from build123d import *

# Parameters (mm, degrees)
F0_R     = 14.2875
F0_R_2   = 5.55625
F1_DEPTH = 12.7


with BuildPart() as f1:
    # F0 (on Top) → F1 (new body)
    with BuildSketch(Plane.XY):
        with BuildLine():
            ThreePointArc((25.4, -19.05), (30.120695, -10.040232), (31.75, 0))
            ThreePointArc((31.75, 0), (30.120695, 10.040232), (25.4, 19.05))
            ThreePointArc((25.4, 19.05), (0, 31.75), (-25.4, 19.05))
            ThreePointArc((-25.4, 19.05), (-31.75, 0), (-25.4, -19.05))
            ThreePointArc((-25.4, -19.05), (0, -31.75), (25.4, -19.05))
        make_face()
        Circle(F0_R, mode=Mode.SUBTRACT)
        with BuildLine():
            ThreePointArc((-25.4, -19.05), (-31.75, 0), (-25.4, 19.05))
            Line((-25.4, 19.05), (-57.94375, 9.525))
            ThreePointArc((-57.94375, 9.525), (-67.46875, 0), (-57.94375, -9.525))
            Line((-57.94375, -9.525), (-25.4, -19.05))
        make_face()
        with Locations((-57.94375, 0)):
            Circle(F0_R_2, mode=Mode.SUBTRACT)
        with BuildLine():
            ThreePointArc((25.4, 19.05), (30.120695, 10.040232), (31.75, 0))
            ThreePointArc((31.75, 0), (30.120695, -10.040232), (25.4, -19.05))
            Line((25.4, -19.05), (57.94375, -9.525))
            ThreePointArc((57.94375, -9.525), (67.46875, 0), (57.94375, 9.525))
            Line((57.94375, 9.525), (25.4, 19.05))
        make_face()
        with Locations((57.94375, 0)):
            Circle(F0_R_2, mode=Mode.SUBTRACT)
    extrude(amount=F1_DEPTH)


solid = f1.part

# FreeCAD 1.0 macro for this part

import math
import FreeCAD as App
import Part
import Sketcher
from FreeCAD import Vector
Q = App.Units.Quantity

doc = App.newDocument("Part")
body = doc.addObject("PartDesign::Body", "Body")

# Sketch on XY plane
sketch1 = body.newObject("Sketcher::SketchObject", "Sketch")
sketch1.AttachmentSupport = (doc.getObject("XY_Plane"), [""])
sketch1.MapMode = "FlatFace"
sketch1.addGeometry([
    Part.ArcOfCircle(Part.Circle(Vector(0, 0, 0), Vector(0, 0, 1), 32), math.radians(-143), math.radians(-37)),  # 0
    Part.LineSegment(Vector(25, -19, 0), Vector(58, -10, 0)),  # 1
    Part.ArcOfCircle(Part.Circle(Vector(58, 0, 0), Vector(0, 0, 1), 10), math.radians(-90), math.radians(90)),  # 2
    Part.LineSegment(Vector(58, 10, 0), Vector(25, 19, 0)),  # 3
    Part.ArcOfCircle(Part.Circle(Vector(0, 0, 0), Vector(0, 0, 1), 32), math.radians(37), math.radians(143)),  # 4
    Part.LineSegment(Vector(-25, 19, 0), Vector(-58, 10, 0)),  # 5
    Part.ArcOfCircle(Part.Circle(Vector(-58, 0, 0), Vector(0, 0, 1), 10), math.radians(90), math.radians(270)),  # 6
    Part.LineSegment(Vector(-58, -10, 0), Vector(-25, -19, 0)),  # 7
    Part.Circle(Vector(-58, 0, 0), Vector(0, 0, 1), 6),  # 8
    Part.Circle(Vector(0, 0, 0), Vector(0, 0, 1), 14),  # 9
    Part.Circle(Vector(58, 0, 0), Vector(0, 0, 1), 6),  # 10
], False)
sketch1.addConstraint([
    Sketcher.Constraint("Coincident", 0, 2, 1, 1),
    Sketcher.Constraint("Coincident", 1, 2, 2, 1),
    Sketcher.Constraint("Coincident", 2, 2, 3, 1),
    Sketcher.Constraint("Coincident", 3, 2, 4, 1),
    Sketcher.Constraint("Coincident", 4, 2, 5, 1),
    Sketcher.Constraint("Coincident", 5, 2, 6, 1),
    Sketcher.Constraint("Coincident", 6, 2, 7, 1),
    Sketcher.Constraint("Coincident", 7, 2, 0, 1),
    Sketcher.Constraint("Coincident", 0, 3, -1, 1),
    Sketcher.Constraint("Coincident", 4, 3, -1, 1),
    Sketcher.Constraint("Coincident", 9, 3, -1, 1),
    Sketcher.Constraint("Coincident", 8, 3, 6, 3),
    Sketcher.Constraint("Coincident", 10, 3, 2, 3),
    Sketcher.Constraint("Equal", 0, 4),
    Sketcher.Constraint("Equal", 2, 6),
    Sketcher.Constraint("Equal", 8, 10),
    Sketcher.Constraint("Symmetric", 2, 3, 6, 3, -1, 1),
    Sketcher.Constraint("Symmetric", 2, 2, 5, 2, -2),
    Sketcher.Constraint("Parallel", 1, 5),
    Sketcher.Constraint("Parallel", 3, 7),
    Sketcher.Constraint("Horizontal", 3, 2, 4, 2),
    Sketcher.Constraint("Horizontal", 0, 2, 7, 2),
    Sketcher.Constraint("Vertical", 10, 3, 1, 2),
    Sketcher.Constraint("Vertical", 1, 2, 2, 2),
    Sketcher.Constraint("Radius", 0, Q("1.25 in")),
    Sketcher.Constraint("Diameter", 8, Q("0.4375 in")),
    Sketcher.Constraint("Diameter", 9, Q("1.125 in")),
    Sketcher.Constraint("DistanceX", -1, 1, 0, 2, Q("1 in")),
    Sketcher.Constraint("Radius", 2, Q("0.375 in")),
    Sketcher.Constraint("DistanceX", -1, 1, 2, 3, Q("2.28125 in")),
])
pad1 = body.newObject("PartDesign::Pad", "Pad")
pad1.Profile = sketch1
pad1.Length = Q("0.5 in")

doc.recompute()
